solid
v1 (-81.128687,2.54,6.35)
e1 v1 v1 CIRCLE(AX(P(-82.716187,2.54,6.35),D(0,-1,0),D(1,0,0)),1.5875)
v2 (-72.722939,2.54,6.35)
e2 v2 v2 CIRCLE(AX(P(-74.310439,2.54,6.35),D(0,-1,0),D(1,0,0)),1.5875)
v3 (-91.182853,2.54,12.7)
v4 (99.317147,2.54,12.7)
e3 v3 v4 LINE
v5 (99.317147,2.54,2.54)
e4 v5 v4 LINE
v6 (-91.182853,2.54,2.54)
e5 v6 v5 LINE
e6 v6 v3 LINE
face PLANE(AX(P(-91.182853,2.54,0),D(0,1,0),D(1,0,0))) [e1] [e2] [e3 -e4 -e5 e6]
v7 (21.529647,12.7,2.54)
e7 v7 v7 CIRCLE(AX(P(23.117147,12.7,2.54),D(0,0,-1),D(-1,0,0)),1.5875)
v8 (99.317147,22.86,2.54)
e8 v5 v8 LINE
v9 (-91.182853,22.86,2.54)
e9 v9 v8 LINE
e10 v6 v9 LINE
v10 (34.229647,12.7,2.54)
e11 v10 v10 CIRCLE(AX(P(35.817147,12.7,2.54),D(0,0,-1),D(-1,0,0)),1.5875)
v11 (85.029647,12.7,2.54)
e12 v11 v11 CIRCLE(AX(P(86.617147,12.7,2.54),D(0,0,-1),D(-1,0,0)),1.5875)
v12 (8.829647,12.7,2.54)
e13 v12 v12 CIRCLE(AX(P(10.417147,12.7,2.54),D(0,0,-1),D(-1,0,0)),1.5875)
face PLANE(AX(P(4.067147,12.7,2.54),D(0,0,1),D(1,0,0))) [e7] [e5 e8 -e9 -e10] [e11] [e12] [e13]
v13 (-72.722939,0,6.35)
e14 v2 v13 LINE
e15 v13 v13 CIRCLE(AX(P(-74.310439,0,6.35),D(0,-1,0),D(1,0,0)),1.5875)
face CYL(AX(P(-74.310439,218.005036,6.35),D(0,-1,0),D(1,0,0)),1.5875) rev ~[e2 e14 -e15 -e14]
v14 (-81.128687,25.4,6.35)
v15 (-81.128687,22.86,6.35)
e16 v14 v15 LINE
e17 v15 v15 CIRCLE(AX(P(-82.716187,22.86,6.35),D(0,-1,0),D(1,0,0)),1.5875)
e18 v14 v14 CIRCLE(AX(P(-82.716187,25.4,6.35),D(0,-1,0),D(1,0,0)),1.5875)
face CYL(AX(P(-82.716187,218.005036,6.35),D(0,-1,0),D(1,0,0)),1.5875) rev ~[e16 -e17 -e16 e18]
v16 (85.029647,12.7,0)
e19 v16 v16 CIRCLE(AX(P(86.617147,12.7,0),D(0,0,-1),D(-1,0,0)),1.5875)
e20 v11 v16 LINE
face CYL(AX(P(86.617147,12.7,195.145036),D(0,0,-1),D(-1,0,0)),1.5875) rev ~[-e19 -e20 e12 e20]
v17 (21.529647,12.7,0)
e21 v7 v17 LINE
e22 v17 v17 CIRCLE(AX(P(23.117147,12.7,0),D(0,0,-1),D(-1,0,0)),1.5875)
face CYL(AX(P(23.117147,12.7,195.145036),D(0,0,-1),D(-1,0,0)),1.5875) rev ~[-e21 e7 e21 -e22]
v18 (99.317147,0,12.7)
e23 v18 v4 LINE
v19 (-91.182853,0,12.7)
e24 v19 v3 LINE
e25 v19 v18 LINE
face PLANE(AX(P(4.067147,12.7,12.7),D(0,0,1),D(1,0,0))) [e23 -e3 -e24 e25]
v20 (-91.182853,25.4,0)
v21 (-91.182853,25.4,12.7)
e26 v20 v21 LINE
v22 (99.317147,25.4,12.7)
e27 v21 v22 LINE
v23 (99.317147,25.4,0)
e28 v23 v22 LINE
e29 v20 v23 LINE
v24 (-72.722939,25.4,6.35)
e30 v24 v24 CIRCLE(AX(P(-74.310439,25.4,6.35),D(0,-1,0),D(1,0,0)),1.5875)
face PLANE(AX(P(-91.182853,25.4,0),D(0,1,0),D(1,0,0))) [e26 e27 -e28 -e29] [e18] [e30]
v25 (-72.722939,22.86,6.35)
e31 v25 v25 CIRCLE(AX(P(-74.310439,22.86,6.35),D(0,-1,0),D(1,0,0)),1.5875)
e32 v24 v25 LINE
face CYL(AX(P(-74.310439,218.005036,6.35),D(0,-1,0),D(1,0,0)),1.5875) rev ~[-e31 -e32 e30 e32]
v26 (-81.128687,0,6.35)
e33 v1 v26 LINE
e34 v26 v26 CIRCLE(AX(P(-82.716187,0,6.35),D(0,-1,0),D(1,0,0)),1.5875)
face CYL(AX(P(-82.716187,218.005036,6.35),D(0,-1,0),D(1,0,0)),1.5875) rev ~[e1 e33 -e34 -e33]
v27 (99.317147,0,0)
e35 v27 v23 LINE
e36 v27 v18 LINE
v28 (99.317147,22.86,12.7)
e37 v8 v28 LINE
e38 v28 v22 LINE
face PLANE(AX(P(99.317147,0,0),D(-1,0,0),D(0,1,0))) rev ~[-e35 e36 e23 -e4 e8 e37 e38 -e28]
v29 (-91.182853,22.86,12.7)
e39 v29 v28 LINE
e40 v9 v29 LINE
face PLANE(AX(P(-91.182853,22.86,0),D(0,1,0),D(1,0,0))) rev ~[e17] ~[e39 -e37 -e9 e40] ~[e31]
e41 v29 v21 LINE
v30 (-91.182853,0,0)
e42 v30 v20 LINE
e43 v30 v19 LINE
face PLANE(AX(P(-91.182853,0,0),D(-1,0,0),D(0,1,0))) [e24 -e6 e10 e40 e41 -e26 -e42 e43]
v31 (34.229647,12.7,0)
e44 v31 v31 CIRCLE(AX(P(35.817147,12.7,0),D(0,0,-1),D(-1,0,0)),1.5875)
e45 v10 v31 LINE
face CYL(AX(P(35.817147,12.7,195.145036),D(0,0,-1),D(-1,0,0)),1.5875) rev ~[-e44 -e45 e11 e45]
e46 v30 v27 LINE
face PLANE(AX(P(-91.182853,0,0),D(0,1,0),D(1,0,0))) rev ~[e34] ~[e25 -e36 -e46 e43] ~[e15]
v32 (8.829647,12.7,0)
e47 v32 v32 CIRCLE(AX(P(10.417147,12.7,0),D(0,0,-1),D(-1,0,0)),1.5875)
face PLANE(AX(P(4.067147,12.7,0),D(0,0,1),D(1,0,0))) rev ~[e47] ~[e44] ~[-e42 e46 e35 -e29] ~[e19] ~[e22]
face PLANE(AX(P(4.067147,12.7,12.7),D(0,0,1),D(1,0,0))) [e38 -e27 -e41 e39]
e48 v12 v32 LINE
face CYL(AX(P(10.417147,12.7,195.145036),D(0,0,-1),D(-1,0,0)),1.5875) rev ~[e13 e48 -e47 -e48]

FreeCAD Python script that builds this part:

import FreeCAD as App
import Part
import Sketcher

V = App.Vector
Q = App.Units.Quantity


def faces_at(feature, points):
    """Names of the faces that lie closest to the given points."""
    faces = feature.Shape.Faces
    near = lambda p: min(range(len(faces)), key=lambda i: faces[i].distToShape(Part.Vertex(*p))[0])
    return sorted({f"Face{near(p) + 1}" for p in points})

doc = App.newDocument("Part")
body = doc.addObject("PartDesign::Body", "Body")

# Sketch on XY plane
sketch1 = body.newObject("Sketcher::SketchObject", "Sketch")
sketch1.AttachmentSupport = (doc.getObject("XY_Plane"), [""])
sketch1.MapMode = "FlatFace"
sketch1.addGeometry([
    Part.LineSegment(V(-91, 25, 0), V(-91, 0, 0)),
    Part.LineSegment(V(-91, 0, 0), V(99, 0, 0)),
    Part.LineSegment(V(99, 0, 0), V(99, 25, 0)),
    Part.LineSegment(V(99, 25, 0), V(-91, 25, 0)),
], False)
sketch1.addConstraint([
    Sketcher.Constraint("Coincident", 0, 2, 1, 1),
    Sketcher.Constraint("Coincident", 1, 2, 2, 1),
    Sketcher.Constraint("Coincident", 2, 2, 3, 1),
    Sketcher.Constraint("Coincident", 3, 2, 0, 1),
    Sketcher.Constraint("Vertical", 0),
    Sketcher.Constraint("Horizontal", 1),
    Sketcher.Constraint("Vertical", 2),
    Sketcher.Constraint("Horizontal", 3),
    Sketcher.Constraint("PointOnObject", 0, 2, -1),
    Sketcher.Constraint("DistanceY", 0, 2, 0, 1, Q("1 in")),
    Sketcher.Constraint("DistanceX", 1, 1, 1, 2, Q("7.5 in")),
    Sketcher.Constraint("DistanceX", 0, 2, -1, 1, Q("91.182853 mm")),
])
pad1 = body.newObject("PartDesign::Pad", "Pad")
pad1.Profile = sketch1
pad1.Length = Q("0.5 in")
doc.recompute()

thickness = body.newObject("PartDesign::Thickness", "Thickness")
thickness.Base = (pad1, faces_at(pad1, [(4.067, 12.7, 12.7), (99.317, 12.7, 6.35), (-91.183, 12.7, 6.35)]))
thickness.Value = Q("0.1 in")
thickness.Reversed = True
thickness.Join = "Arc"

# Sketch on XY plane
sketch2 = body.newObject("Sketcher::SketchObject", "Sketch001")
sketch2.AttachmentSupport = (doc.getObject("XY_Plane"), [""])
sketch2.MapMode = "FlatFace"
sketch2.AttachmentOffset = App.Placement(V(0, 0, 0.1 * 25.4), App.Rotation())
sketch2.addGeometry([
    Part.Circle(V(10.4, 12.7, 0), V(0, 0, 1), 1.6),
    Part.Circle(V(23.1, 12.7, 0), V(0, 0, 1), 1.6),
    Part.Circle(V(35.8, 12.7, 0), V(0, 0, 1), 1.6),
    Part.Circle(V(86.6, 12.7, 0), V(0, 0, 1), 1.6),
], False)
sketch2.addConstraint([
    Sketcher.Constraint("Equal", 0, 1),
    Sketcher.Constraint("Equal", 1, 2),
    Sketcher.Constraint("Equal", 2, 3),
    Sketcher.Constraint("Horizontal", 0, 3, 1, 3),
    Sketcher.Constraint("Horizontal", 1, 3, 2, 3),
    Sketcher.Constraint("Horizontal", 2, 3, 3, 3),
    Sketcher.Constraint("Diameter", 0, Q("0.125 in")),
    Sketcher.Constraint("DistanceX", 0, 3, 2, 3, Q("1 in")),
    Sketcher.Constraint("DistanceX", 2, 3, 3, 3, Q("2 in")),
    Sketcher.Constraint("DistanceY", -1, 1, 0, 3, Q("0.5 in")),
    Sketcher.Constraint("DistanceX", 0, 3, 1, 3, Q("0.5 in")),
    Sketcher.Constraint("DistanceX", -1, 1, 0, 3, Q("10.417147 mm")),
])
doc.recompute()
hole = body.newObject("PartDesign::Hole", "Hole")
hole.Profile = sketch2
hole.ThreadType = "None"
hole.Diameter = Q("0.125 in")
hole.DepthType = "ThroughAll"

# Sketch on XZ plane
sketch3 = body.newObject("Sketcher::SketchObject", "Sketch002")
sketch3.AttachmentSupport = (doc.getObject("XZ_Plane"), [""])
sketch3.MapMode = "FlatFace"
sketch3.AttachmentOffset = App.Placement(V(0, 0, -1 * 25.4), App.Rotation())
sketch3.addGeometry([
    Part.Circle(V(-74.3, 6.3, 0), V(0, 0, 1), 1.6),
    Part.Circle(V(-82.7, 6.3, 0), V(0, 0, 1), 1.6),
], False)
sketch3.addConstraint([
    Sketcher.Constraint("Equal", 0, 1),
    Sketcher.Constraint("Horizontal", 0, 3, 1, 3),
    Sketcher.Constraint("Diameter", 0, Q("0.125 in")),
    Sketcher.Constraint("DistanceY", -1, 1, 0, 3, Q("0.25 in")),
    Sketcher.Constraint("DistanceX", 0, 3, -1, 1, Q("74.310439 mm")),
    Sketcher.Constraint("DistanceX", 1, 3, 0, 3, Q("8.405748 mm")),
])
doc.recompute()
hole2 = body.newObject("PartDesign::Hole", "Hole001")
hole2.Profile = sketch3
hole2.ThreadType = "None"
hole2.Diameter = Q("0.125 in")
hole2.DepthType = "ThroughAll"
hole2.Reversed = True

doc.recompute()
